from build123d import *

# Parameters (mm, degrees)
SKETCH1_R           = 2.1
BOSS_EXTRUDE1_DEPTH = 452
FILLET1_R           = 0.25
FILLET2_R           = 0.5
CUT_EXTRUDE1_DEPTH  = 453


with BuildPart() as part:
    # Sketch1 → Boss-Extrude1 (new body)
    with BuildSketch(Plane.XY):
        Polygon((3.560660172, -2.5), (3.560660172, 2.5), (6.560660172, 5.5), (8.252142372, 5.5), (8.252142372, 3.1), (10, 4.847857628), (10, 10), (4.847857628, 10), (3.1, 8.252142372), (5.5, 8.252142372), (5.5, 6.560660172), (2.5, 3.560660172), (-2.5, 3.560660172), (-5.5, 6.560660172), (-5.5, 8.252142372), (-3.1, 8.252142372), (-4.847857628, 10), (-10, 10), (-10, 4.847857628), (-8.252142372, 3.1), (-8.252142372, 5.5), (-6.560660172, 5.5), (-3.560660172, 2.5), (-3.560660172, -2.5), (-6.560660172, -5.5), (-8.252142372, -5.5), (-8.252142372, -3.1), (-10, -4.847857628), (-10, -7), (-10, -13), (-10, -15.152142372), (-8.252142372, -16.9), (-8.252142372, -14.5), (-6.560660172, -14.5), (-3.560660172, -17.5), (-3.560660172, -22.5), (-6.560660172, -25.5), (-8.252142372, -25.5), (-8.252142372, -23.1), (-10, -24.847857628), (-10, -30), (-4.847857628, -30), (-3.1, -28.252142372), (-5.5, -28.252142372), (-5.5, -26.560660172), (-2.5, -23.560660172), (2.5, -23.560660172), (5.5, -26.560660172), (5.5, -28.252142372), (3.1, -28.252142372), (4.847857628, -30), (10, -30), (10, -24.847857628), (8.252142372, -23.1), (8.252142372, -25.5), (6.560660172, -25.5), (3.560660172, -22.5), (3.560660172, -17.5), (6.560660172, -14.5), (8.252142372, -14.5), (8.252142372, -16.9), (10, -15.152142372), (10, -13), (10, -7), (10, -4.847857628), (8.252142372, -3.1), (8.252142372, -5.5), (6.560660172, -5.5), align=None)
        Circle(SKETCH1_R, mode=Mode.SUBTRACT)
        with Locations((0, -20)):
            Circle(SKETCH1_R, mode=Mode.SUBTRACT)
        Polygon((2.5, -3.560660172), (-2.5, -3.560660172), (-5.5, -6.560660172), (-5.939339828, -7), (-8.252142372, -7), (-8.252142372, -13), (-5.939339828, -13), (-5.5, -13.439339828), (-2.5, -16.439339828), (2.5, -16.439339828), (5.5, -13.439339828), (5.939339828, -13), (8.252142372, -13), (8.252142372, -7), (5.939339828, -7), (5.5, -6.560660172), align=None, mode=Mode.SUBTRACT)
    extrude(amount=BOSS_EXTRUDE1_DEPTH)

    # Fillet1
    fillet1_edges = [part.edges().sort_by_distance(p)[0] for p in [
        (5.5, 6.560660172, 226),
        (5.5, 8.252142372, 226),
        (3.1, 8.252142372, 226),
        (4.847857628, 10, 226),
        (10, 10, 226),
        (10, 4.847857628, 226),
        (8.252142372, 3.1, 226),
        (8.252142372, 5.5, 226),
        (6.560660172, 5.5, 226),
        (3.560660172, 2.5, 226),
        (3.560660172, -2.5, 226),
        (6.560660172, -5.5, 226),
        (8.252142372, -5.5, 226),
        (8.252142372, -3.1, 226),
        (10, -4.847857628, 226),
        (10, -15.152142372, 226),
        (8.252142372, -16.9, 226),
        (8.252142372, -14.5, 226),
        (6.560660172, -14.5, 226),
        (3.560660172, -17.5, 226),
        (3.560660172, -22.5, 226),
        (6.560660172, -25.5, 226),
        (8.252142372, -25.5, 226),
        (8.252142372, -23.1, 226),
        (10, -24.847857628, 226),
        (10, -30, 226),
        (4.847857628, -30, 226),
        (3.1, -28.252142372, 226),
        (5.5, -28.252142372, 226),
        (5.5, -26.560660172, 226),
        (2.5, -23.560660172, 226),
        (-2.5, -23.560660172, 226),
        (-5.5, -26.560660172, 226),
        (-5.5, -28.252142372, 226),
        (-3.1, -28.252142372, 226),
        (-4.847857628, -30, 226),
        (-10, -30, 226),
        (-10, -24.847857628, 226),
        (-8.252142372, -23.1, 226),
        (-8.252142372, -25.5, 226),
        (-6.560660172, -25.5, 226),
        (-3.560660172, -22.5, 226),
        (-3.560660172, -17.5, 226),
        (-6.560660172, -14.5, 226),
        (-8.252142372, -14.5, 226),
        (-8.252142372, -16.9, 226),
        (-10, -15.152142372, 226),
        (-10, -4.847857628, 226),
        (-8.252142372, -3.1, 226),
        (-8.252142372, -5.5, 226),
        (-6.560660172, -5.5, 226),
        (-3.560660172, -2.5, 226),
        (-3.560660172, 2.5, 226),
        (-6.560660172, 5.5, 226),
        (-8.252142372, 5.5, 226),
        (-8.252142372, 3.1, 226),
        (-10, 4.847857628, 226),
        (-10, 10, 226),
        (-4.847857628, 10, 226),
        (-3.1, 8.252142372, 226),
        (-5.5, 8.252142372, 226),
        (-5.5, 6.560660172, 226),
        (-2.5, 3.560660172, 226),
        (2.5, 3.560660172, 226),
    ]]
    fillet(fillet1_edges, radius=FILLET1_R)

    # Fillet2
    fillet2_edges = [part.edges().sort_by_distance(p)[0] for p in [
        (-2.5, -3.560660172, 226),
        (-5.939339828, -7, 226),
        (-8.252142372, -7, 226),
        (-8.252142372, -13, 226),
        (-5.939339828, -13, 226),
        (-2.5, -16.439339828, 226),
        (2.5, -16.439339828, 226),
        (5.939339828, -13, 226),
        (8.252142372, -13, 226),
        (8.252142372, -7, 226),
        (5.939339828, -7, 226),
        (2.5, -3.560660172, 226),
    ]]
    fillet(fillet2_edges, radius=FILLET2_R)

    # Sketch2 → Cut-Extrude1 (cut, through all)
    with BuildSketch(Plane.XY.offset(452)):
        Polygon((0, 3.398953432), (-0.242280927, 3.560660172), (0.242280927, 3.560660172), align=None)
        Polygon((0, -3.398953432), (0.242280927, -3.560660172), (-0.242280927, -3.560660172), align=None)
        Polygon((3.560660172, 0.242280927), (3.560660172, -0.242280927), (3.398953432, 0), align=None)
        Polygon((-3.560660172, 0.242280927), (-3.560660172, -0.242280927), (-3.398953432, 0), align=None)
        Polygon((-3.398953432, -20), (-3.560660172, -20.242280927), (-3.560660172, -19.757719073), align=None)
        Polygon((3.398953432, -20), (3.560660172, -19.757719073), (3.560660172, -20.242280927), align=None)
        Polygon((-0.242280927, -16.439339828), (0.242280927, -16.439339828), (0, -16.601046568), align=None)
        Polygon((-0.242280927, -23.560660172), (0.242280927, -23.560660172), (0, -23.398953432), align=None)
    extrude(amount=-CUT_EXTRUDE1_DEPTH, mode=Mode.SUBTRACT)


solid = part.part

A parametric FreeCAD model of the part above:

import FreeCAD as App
import Part
import Sketcher
from FreeCAD import Vector
Q = App.Units.Quantity


def edges_at(feature, points):
    """Names of the edges that pass closest to the given points."""
    edges = feature.Shape.Edges
    near = lambda p: min(range(len(edges)), key=lambda i: edges[i].distToShape(Part.Vertex(*p))[0])
    return sorted({f"Edge{near(p) + 1}" for p in points})

doc = App.newDocument("Part")
body = doc.addObject("PartDesign::Body", "Body")

sketch1 = body.newObject("Sketcher::SketchObject", "Sketch")
sketch1.AttachmentSupport = (doc.getObject("XY_Plane"), [""])
sketch1.MapMode = "FlatFace"
sketch1.addGeometry([
    Part.LineSegment(Vector(3.6, -2.5, 0), Vector(3.6, 2.5, 0)),
    Part.LineSegment(Vector(3.6, 2.5, 0), Vector(6.6, 5.5, 0)),
    Part.LineSegment(Vector(6.6, 5.5, 0), Vector(8.3, 5.5, 0)),
    Part.LineSegment(Vector(8.3, 5.5, 0), Vector(8.3, 3.1, 0)),
    Part.LineSegment(Vector(8.3, 3.1, 0), Vector(10, 4.8, 0)),
    Part.LineSegment(Vector(10, 4.8, 0), Vector(10, 10, 0)),
    Part.LineSegment(Vector(10, 10, 0), Vector(4.8, 10, 0)),
    Part.LineSegment(Vector(4.8, 10, 0), Vector(3.1, 8.3, 0)),
    Part.LineSegment(Vector(3.1, 8.3, 0), Vector(5.5, 8.3, 0)),
    Part.LineSegment(Vector(5.5, 8.3, 0), Vector(5.5, 6.6, 0)),
    Part.LineSegment(Vector(5.5, 6.6, 0), Vector(2.5, 3.6, 0)),
    Part.LineSegment(Vector(2.5, 3.6, 0), Vector(-2.5, 3.6, 0)),
    Part.LineSegment(Vector(-2.5, 3.6, 0), Vector(-5.5, 6.6, 0)),
    Part.LineSegment(Vector(-5.5, 6.6, 0), Vector(-5.5, 8.3, 0)),
    Part.LineSegment(Vector(-5.5, 8.3, 0), Vector(-3.1, 8.3, 0)),
    Part.LineSegment(Vector(-3.1, 8.3, 0), Vector(-4.8, 10, 0)),
    Part.LineSegment(Vector(-4.8, 10, 0), Vector(-10, 10, 0)),
    Part.LineSegment(Vector(-10, 10, 0), Vector(-10, 4.8, 0)),
    Part.LineSegment(Vector(-10, 4.8, 0), Vector(-8.3, 3.1, 0)),
    Part.LineSegment(Vector(-8.3, 3.1, 0), Vector(-8.3, 5.5, 0)),
    Part.LineSegment(Vector(-8.3, 5.5, 0), Vector(-6.6, 5.5, 0)),
    Part.LineSegment(Vector(-6.6, 5.5, 0), Vector(-3.6, 2.5, 0)),
    Part.LineSegment(Vector(-3.6, 2.5, 0), Vector(-3.6, -2.5, 0)),
    Part.LineSegment(Vector(-3.6, -2.5, 0), Vector(-6.6, -5.5, 0)),
    Part.LineSegment(Vector(-6.6, -5.5, 0), Vector(-8.3, -5.5, 0)),
    Part.LineSegment(Vector(-8.3, -5.5, 0), Vector(-8.3, -3.1, 0)),
    Part.LineSegment(Vector(-8.3, -3.1, 0), Vector(-10, -4.8, 0)),
    Part.LineSegment(Vector(-10, -4.8, 0), Vector(-10, -15.2, 0)),
    Part.LineSegment(Vector(-10, -15.2, 0), Vector(-8.3, -16.9, 0)),
    Part.LineSegment(Vector(-8.3, -16.9, 0), Vector(-8.3, -14.5, 0)),
    Part.LineSegment(Vector(-8.3, -14.5, 0), Vector(-6.6, -14.5, 0)),
    Part.LineSegment(Vector(-6.6, -14.5, 0), Vector(-3.6, -17.5, 0)),
    Part.LineSegment(Vector(-3.6, -17.5, 0), Vector(-3.6, -22.5, 0)),
    Part.LineSegment(Vector(-3.6, -22.5, 0), Vector(-6.6, -25.5, 0)),
    Part.LineSegment(Vector(-6.6, -25.5, 0), Vector(-8.3, -25.5, 0)),
    Part.LineSegment(Vector(-8.3, -25.5, 0), Vector(-8.3, -23.1, 0)),
    Part.LineSegment(Vector(-8.3, -23.1, 0), Vector(-10, -24.8, 0)),
    Part.LineSegment(Vector(-10, -24.8, 0), Vector(-10, -30, 0)),
    Part.LineSegment(Vector(-10, -30, 0), Vector(-4.8, -30, 0)),
    Part.LineSegment(Vector(-4.8, -30, 0), Vector(-3.1, -28.3, 0)),
    Part.LineSegment(Vector(-3.1, -28.3, 0), Vector(-5.5, -28.3, 0)),
    Part.LineSegment(Vector(-5.5, -28.3, 0), Vector(-5.5, -26.6, 0)),
    Part.LineSegment(Vector(-5.5, -26.6, 0), Vector(-2.5, -23.6, 0)),
    Part.LineSegment(Vector(-2.5, -23.6, 0), Vector(2.5, -23.6, 0)),
    Part.LineSegment(Vector(2.5, -23.6, 0), Vector(5.5, -26.6, 0)),
    Part.LineSegment(Vector(5.5, -26.6, 0), Vector(5.5, -28.3, 0)),
    Part.LineSegment(Vector(5.5, -28.3, 0), Vector(3.1, -28.3, 0)),
    Part.LineSegment(Vector(3.1, -28.3, 0), Vector(4.8, -30, 0)),
    Part.LineSegment(Vector(4.8, -30, 0), Vector(10, -30, 0)),
    Part.LineSegment(Vector(10, -30, 0), Vector(10, -24.8, 0)),
    Part.LineSegment(Vector(10, -24.8, 0), Vector(8.3, -23.1, 0)),
    Part.LineSegment(Vector(8.3, -23.1, 0), Vector(8.3, -25.5, 0)),
    Part.LineSegment(Vector(8.3, -25.5, 0), Vector(6.6, -25.5, 0)),
    Part.LineSegment(Vector(6.6, -25.5, 0), Vector(3.6, -22.5, 0)),
    Part.LineSegment(Vector(3.6, -22.5, 0), Vector(3.6, -17.5, 0)),
    Part.LineSegment(Vector(3.6, -17.5, 0), Vector(6.6, -14.5, 0)),
    Part.LineSegment(Vector(6.6, -14.5, 0), Vector(8.3, -14.5, 0)),
    Part.LineSegment(Vector(8.3, -14.5, 0), Vector(8.3, -16.9, 0)),
    Part.LineSegment(Vector(8.3, -16.9, 0), Vector(10, -15.2, 0)),
    Part.LineSegment(Vector(10, -15.2, 0), Vector(10, -4.8, 0)),
    Part.LineSegment(Vector(10, -4.8, 0), Vector(8.3, -3.1, 0)),
    Part.LineSegment(Vector(8.3, -3.1, 0), Vector(8.3, -5.5, 0)),
    Part.LineSegment(Vector(8.3, -5.5, 0), Vector(6.6, -5.5, 0)),
    Part.LineSegment(Vector(6.6, -5.5, 0), Vector(3.6, -2.5, 0)),
    Part.Circle(Vector(0, -20, 0), Vector(0, 0, 1), 2.1),
    Part.LineSegment(Vector(-2.5, -3.6, 0), Vector(2.5, -3.6, 0)),
    Part.LineSegment(Vector(2.5, -3.6, 0), Vector(5.9, -7, 0)),
    Part.LineSegment(Vector(5.9, -7, 0), Vector(8.3, -7, 0)),
    Part.LineSegment(Vector(8.3, -7, 0), Vector(8.3, -13, 0)),
    Part.LineSegment(Vector(8.3, -13, 0), Vector(5.9, -13, 0)),
    Part.LineSegment(Vector(5.9, -13, 0), Vector(2.5, -16.4, 0)),
    Part.LineSegment(Vector(2.5, -16.4, 0), Vector(-2.5, -16.4, 0)),
    Part.LineSegment(Vector(-2.5, -16.4, 0), Vector(-5.9, -13, 0)),
    Part.LineSegment(Vector(-5.9, -13, 0), Vector(-8.3, -13, 0)),
    Part.LineSegment(Vector(-8.3, -13, 0), Vector(-8.3, -7, 0)),
    Part.LineSegment(Vector(-8.3, -7, 0), Vector(-5.9, -7, 0)),
    Part.LineSegment(Vector(-5.9, -7, 0), Vector(-2.5, -3.6, 0)),
    Part.Circle(Vector(0, 0, 0), Vector(0, 0, 1), 2.1),
], False)
sketch1.addConstraint([
    Sketcher.Constraint("Coincident", 0, 2, 1, 1),
    Sketcher.Constraint("Coincident", 1, 2, 2, 1),
    Sketcher.Constraint("Coincident", 2, 2, 3, 1),
    Sketcher.Constraint("Coincident", 3, 2, 4, 1),
    Sketcher.Constraint("Coincident", 4, 2, 5, 1),
    Sketcher.Constraint("Coincident", 5, 2, 6, 1),
    Sketcher.Constraint("Coincident", 6, 2, 7, 1),
    Sketcher.Constraint("Coincident", 7, 2, 8, 1),
    Sketcher.Constraint("Coincident", 8, 2, 9, 1),
    Sketcher.Constraint("Coincident", 9, 2, 10, 1),
    Sketcher.Constraint("Coincident", 10, 2, 11, 1),
    Sketcher.Constraint("Coincident", 11, 2, 12, 1),
    Sketcher.Constraint("Coincident", 12, 2, 13, 1),
    Sketcher.Constraint("Coincident", 13, 2, 14, 1),
    Sketcher.Constraint("Coincident", 14, 2, 15, 1),
    Sketcher.Constraint("Coincident", 15, 2, 16, 1),
    Sketcher.Constraint("Coincident", 16, 2, 17, 1),
    Sketcher.Constraint("Coincident", 17, 2, 18, 1),
    Sketcher.Constraint("Coincident", 18, 2, 19, 1),
    Sketcher.Constraint("Coincident", 19, 2, 20, 1),
    Sketcher.Constraint("Coincident", 20, 2, 21, 1),
    Sketcher.Constraint("Coincident", 21, 2, 22, 1),
    Sketcher.Constraint("Coincident", 22, 2, 23, 1),
    Sketcher.Constraint("Coincident", 23, 2, 24, 1),
    Sketcher.Constraint("Coincident", 24, 2, 25, 1),
    Sketcher.Constraint("Coincident", 25, 2, 26, 1),
    Sketcher.Constraint("Coincident", 26, 2, 27, 1),
    Sketcher.Constraint("Coincident", 27, 2, 28, 1),
    Sketcher.Constraint("Coincident", 28, 2, 29, 1),
    Sketcher.Constraint("Coincident", 29, 2, 30, 1),
    Sketcher.Constraint("Coincident", 30, 2, 31, 1),
    Sketcher.Constraint("Coincident", 31, 2, 32, 1),
    Sketcher.Constraint("Coincident", 32, 2, 33, 1),
    Sketcher.Constraint("Coincident", 33, 2, 34, 1),
    Sketcher.Constraint("Coincident", 34, 2, 35, 1),
    Sketcher.Constraint("Coincident", 35, 2, 36, 1),
    Sketcher.Constraint("Coincident", 36, 2, 37, 1),
    Sketcher.Constraint("Coincident", 37, 2, 38, 1),
    Sketcher.Constraint("Coincident", 38, 2, 39, 1),
    Sketcher.Constraint("Coincident", 39, 2, 40, 1),
    Sketcher.Constraint("Coincident", 40, 2, 41, 1),
    Sketcher.Constraint("Coincident", 41, 2, 42, 1),
    Sketcher.Constraint("Coincident", 42, 2, 43, 1),
    Sketcher.Constraint("Coincident", 43, 2, 44, 1),
    Sketcher.Constraint("Coincident", 44, 2, 45, 1),
    Sketcher.Constraint("Coincident", 45, 2, 46, 1),
    Sketcher.Constraint("Coincident", 46, 2, 47, 1),
    Sketcher.Constraint("Coincident", 47, 2, 48, 1),
    Sketcher.Constraint("Coincident", 48, 2, 49, 1),
    Sketcher.Constraint("Coincident", 49, 2, 50, 1),
    Sketcher.Constraint("Coincident", 50, 2, 51, 1),
    Sketcher.Constraint("Coincident", 51, 2, 52, 1),
    Sketcher.Constraint("Coincident", 52, 2, 53, 1),
    Sketcher.Constraint("Coincident", 53, 2, 54, 1),
    Sketcher.Constraint("Coincident", 54, 2, 55, 1),
    Sketcher.Constraint("Coincident", 55, 2, 56, 1),
    Sketcher.Constraint("Coincident", 56, 2, 57, 1),
    Sketcher.Constraint("Coincident", 57, 2, 58, 1),
    Sketcher.Constraint("Coincident", 58, 2, 59, 1),
    Sketcher.Constraint("Coincident", 59, 2, 60, 1),
    Sketcher.Constraint("Coincident", 60, 2, 61, 1),
    Sketcher.Constraint("Coincident", 61, 2, 62, 1),
    Sketcher.Constraint("Coincident", 62, 2, 63, 1),
    Sketcher.Constraint("Coincident", 63, 2, 0, 1),
    Sketcher.Constraint("Coincident", 65, 2, 66, 1),
    Sketcher.Constraint("Coincident", 66, 2, 67, 1),
    Sketcher.Constraint("Coincident", 67, 2, 68, 1),
    Sketcher.Constraint("Coincident", 68, 2, 69, 1),
    Sketcher.Constraint("Coincident", 69, 2, 70, 1),
    Sketcher.Constraint("Coincident", 70, 2, 71, 1),
    Sketcher.Constraint("Coincident", 71, 2, 72, 1),
    Sketcher.Constraint("Coincident", 72, 2, 73, 1),
    Sketcher.Constraint("Coincident", 73, 2, 74, 1),
    Sketcher.Constraint("Coincident", 74, 2, 75, 1),
    Sketcher.Constraint("Coincident", 75, 2, 76, 1),
    Sketcher.Constraint("Coincident", 76, 2, 65, 1),
    Sketcher.Constraint("Vertical", 0),
    Sketcher.Constraint("Horizontal", 2),
    Sketcher.Constraint("Vertical", 3),
    Sketcher.Constraint("Vertical", 5),
    Sketcher.Constraint("Horizontal", 6),
    Sketcher.Constraint("Horizontal", 8),
    Sketcher.Constraint("Vertical", 9),
    Sketcher.Constraint("Horizontal", 11),
    Sketcher.Constraint("Vertical", 13),
    Sketcher.Constraint("Horizontal", 14),
    Sketcher.Constraint("Horizontal", 16),
    Sketcher.Constraint("Vertical", 17),
    Sketcher.Constraint("Vertical", 19),
    Sketcher.Constraint("Horizontal", 20),
    Sketcher.Constraint("Vertical", 22),
    Sketcher.Constraint("Horizontal", 24),
    Sketcher.Constraint("Vertical", 25),
    Sketcher.Constraint("Vertical", 27),
    Sketcher.Constraint("Vertical", 29),
    Sketcher.Constraint("Horizontal", 30),
    Sketcher.Constraint("Vertical", 32),
    Sketcher.Constraint("Horizontal", 34),
    Sketcher.Constraint("Vertical", 35),
    Sketcher.Constraint("Vertical", 37),
    Sketcher.Constraint("Horizontal", 38),
    Sketcher.Constraint("Horizontal", 40),
    Sketcher.Constraint("Vertical", 41),
    Sketcher.Constraint("Horizontal", 43),
    Sketcher.Constraint("Vertical", 45),
    Sketcher.Constraint("Horizontal", 46),
    Sketcher.Constraint("Horizontal", 48),
    Sketcher.Constraint("Vertical", 49),
    Sketcher.Constraint("Vertical", 51),
    Sketcher.Constraint("Horizontal", 52),
    Sketcher.Constraint("Vertical", 54),
    Sketcher.Constraint("Horizontal", 56),
    Sketcher.Constraint("Vertical", 57),
    Sketcher.Constraint("Vertical", 59),
    Sketcher.Constraint("Vertical", 61),
    Sketcher.Constraint("Horizontal", 62),
    Sketcher.Constraint("Horizontal", 65),
    Sketcher.Constraint("Horizontal", 67),
    Sketcher.Constraint("Vertical", 68),
    Sketcher.Constraint("Horizontal", 69),
    Sketcher.Constraint("Horizontal", 71),
    Sketcher.Constraint("Horizontal", 73),
    Sketcher.Constraint("Vertical", 74),
    Sketcher.Constraint("Horizontal", 75),
    Sketcher.Constraint("Coincident", 77, 3, -1, 1),
    Sketcher.Constraint("Equal", 64, 77),
    Sketcher.Constraint("Symmetric", 0, 2, 22, 2, -1, 1),
    Sketcher.Constraint("Symmetric", 1, 2, 23, 2, -1, 1),
    Sketcher.Constraint("Symmetric", 3, 2, 25, 2, -1, 1),
    Sketcher.Constraint("Symmetric", 4, 2, 26, 2, -1, 1),
    Sketcher.Constraint("Symmetric", 17, 2, 59, 2, -1, 1),
    Sketcher.Constraint("Symmetric", 18, 2, 60, 2, -1, 1),
    Sketcher.Constraint("Symmetric", 20, 2, 62, 2, -1, 1),
    Sketcher.Constraint("Symmetric", 11, 2, 65, 2, -1, 1),
    Sketcher.Constraint("Symmetric", 9, 2, 12, 2, -2),
    Sketcher.Constraint("Symmetric", 7, 2, 14, 2, -2),
    Sketcher.Constraint("Symmetric", 6, 2, 15, 2, -2),
    Sketcher.Constraint("Symmetric", 4, 2, 17, 2, -2),
    Sketcher.Constraint("Symmetric", 3, 2, 18, 2, -2),
    Sketcher.Constraint("Symmetric", 1, 2, 20, 2, -2),
    Sketcher.Constraint("Symmetric", 41, 2, 44, 2, -2),
    Sketcher.Constraint("Symmetric", 39, 2, 46, 2, -2),
    Sketcher.Constraint("Symmetric", 38, 2, 47, 2, -2),
    Sketcher.Constraint("Symmetric", 36, 2, 49, 2, -2),
    Sketcher.Constraint("Symmetric", 35, 2, 50, 2, -2),
    Sketcher.Constraint("Symmetric", 33, 2, 52, 2, -2),
    Sketcher.Constraint("Symmetric", 32, 2, 53, 2, -2),
    Sketcher.Constraint("Symmetric", 30, 2, 55, 2, -2),
    Sketcher.Constraint("Symmetric", 28, 2, 57, 2, -2),
    Sketcher.Constraint("Symmetric", 69, 2, 72, 2, -2),
    Sketcher.Constraint("Symmetric", 67, 2, 74, 2, -2),
    Sketcher.Constraint("PointOnObject", 64, 3, -2),
    Sketcher.Constraint("Parallel", 1, 4),
    Sketcher.Constraint("Parallel", 4, 7),
    Sketcher.Constraint("Parallel", 7, 10),
    Sketcher.Constraint("Perpendicular", 10, 12),
    Sketcher.Constraint("Parallel", 12, 15),
    Sketcher.Constraint("Parallel", 18, 21),
    Sketcher.Constraint("Perpendicular", 26, 28),
    Sketcher.Constraint("Parallel", 28, 31),
    Sketcher.Constraint("Perpendicular", 31, 33),
    Sketcher.Constraint("Parallel", 33, 36),
    Sketcher.Constraint("Parallel", 36, 39),
    Sketcher.Constraint("Parallel", 39, 42),
    Sketcher.Constraint("Perpendicular", 42, 44),
    Sketcher.Constraint("Perpendicular", 53, 55),
    Sketcher.Constraint("Parallel", 55, 58),
    Sketcher.Constraint("Parallel", 60, 63),
    Sketcher.Constraint("Parallel", 63, 66),
    Sketcher.Constraint("Perpendicular", 66, 70),
    Sketcher.Constraint("Perpendicular", 70, 72),
    Sketcher.Constraint("Perpendicular", 72, 76),
    Sketcher.Constraint("Vertical", 25, 2, 28, 2),
    Sketcher.Constraint("Vertical", 23, 2, 30, 2),
    Sketcher.Constraint("Vertical", 22, 2, 31, 2),
    Sketcher.Constraint("Vertical", 30, 2, 33, 2),
    Sketcher.Constraint("Vertical", 29, 2, 34, 2),
    Sketcher.Constraint("Vertical", 27, 2, 36, 2),
    Sketcher.Constraint("Vertical", 15, 2, 38, 2),
    Sketcher.Constraint("Vertical", 14, 2, 39, 2),
    Sketcher.Constraint("Vertical", 13, 2, 40, 2),
    Sketcher.Constraint("Vertical", 11, 2, 42, 2),
    Sketcher.Constraint("Vertical", 61, 2, 67, 2),
    Sketcher.Constraint("Vertical", 66, 2, 69, 2),
    Sketcher.Constraint("Vertical", 65, 2, 70, 2),
    Sketcher.Constraint("Vertical", 72, 2, 75, 2),
    Sketcher.Constraint("Equal", 71, 0),
    Sketcher.Constraint("Equal", 46, 3),
    Sketcher.Constraint("Equal", 48, 5),
    Sketcher.Constraint("Equal", 62, 9),
    Sketcher.Constraint("Equal", 25, 29),
    Sketcher.Constraint("Equal", 22, 32),
    Sketcher.Constraint("Equal", 29, 35),
    Sketcher.Constraint("Equal", 17, 37),
    Sketcher.Constraint("Equal", 13, 41),
    Sketcher.Constraint("Equal", 4, 7),
    Sketcher.Constraint("Equal", 1, 10),
    Sketcher.Constraint("Diameter", 64, Q("4.2 mm")),
    Sketcher.Constraint("DistanceX", 11, 2, 11, 1, Q("5 mm")),
    Sketcher.Constraint("DistanceY", 68, 2, 68, 1, Q("6 mm")),
    Sketcher.Constraint("DistanceX", 8, 1, 8, 2, Q("2.4 mm")),
    Sketcher.Constraint("DistanceY", 64, 3, -1, 1, Q("20 mm")),
    Sketcher.Constraint("DistanceX", -1, 1, 4, 2, Q("10 mm")),
    Sketcher.Constraint("DistanceY", 37, 2, -1, 1, Q("30 mm")),
    Sketcher.Constraint("DistanceY", 66, 2, -1, 1, Q("7 mm")),
    Sketcher.Constraint("DistanceY", -1, 1, 1, 2, Q("5.5 mm")),
    Sketcher.Constraint("Distance", 66, Q("4.863961 mm")),
    Sketcher.Constraint("DistanceX", 2, 1, 2, 2, Q("1.691482 mm")),
])
pad1 = body.newObject("PartDesign::Pad", "Pad")
pad1.Profile = sketch1
pad1.Length = 452
doc.recompute()

fillet = body.newObject("PartDesign::Fillet", "Fillet")
fillet.Base = (pad1, edges_at(pad1, [
    (5.5, 6.561, 226),
    (5.5, 8.252, 226),
    (3.1, 8.252, 226),
    (4.848, 10, 226),
    (10, 10, 226),
    (10, 4.848, 226),
    (8.252, 3.1, 226),
    (8.252, 5.5, 226),
    (6.561, 5.5, 226),
    (3.561, 2.5, 226),
    (3.561, -2.5, 226),
    (6.561, -5.5, 226),
    (8.252, -5.5, 226),
    (8.252, -3.1, 226),
    (10, -4.848, 226),
    (10, -15.152, 226),
    (8.252, -16.9, 226),
    (8.252, -14.5, 226),
    (6.561, -14.5, 226),
    (3.561, -17.5, 226),
    (3.561, -22.5, 226),
    (6.561, -25.5, 226),
    (8.252, -25.5, 226),
    (8.252, -23.1, 226),
    (10, -24.848, 226),
    (10, -30, 226),
    (4.848, -30, 226),
    (3.1, -28.252, 226),
    (5.5, -28.252, 226),
    (5.5, -26.561, 226),
    (2.5, -23.561, 226),
    (-2.5, -23.561, 226),
    (-5.5, -26.561, 226),
    (-5.5, -28.252, 226),
    (-3.1, -28.252, 226),
    (-4.848, -30, 226),
    (-10, -30, 226),
    (-10, -24.848, 226),
    (-8.252, -23.1, 226),
    (-8.252, -25.5, 226),
    (-6.561, -25.5, 226),
    (-3.561, -22.5, 226),
    (-3.561, -17.5, 226),
    (-6.561, -14.5, 226),
    (-8.252, -14.5, 226),
    (-8.252, -16.9, 226),
    (-10, -15.152, 226),
    (-10, -4.848, 226),
    (-8.252, -3.1, 226),
    (-8.252, -5.5, 226),
    (-6.561, -5.5, 226),
    (-3.561, -2.5, 226),
    (-3.561, 2.5, 226),
    (-6.561, 5.5, 226),
    (-8.252, 5.5, 226),
    (-8.252, 3.1, 226),
    (-10, 4.848, 226),
    (-10, 10, 226),
    (-4.848, 10, 226),
    (-3.1, 8.252, 226),
    (-5.5, 8.252, 226),
    (-5.5, 6.561, 226),
    (-2.5, 3.561, 226),
    (2.5, 3.561, 226),
]))
fillet.Radius = 0.25
doc.recompute()

fillet2 = body.newObject("PartDesign::Fillet", "Fillet001")
fillet2.Base = (fillet, edges_at(fillet, [
    (-2.5, -3.561, 226),
    (-5.939, -7, 226),
    (-8.252, -7, 226),
    (-8.252, -13, 226),
    (-5.939, -13, 226),
    (-2.5, -16.439, 226),
    (2.5, -16.439, 226),
    (5.939, -13, 226),
    (8.252, -13, 226),
    (8.252, -7, 226),
    (5.939, -7, 226),
    (2.5, -3.561, 226),
]))
fillet2.Radius = 0.5

sketch2 = body.newObject("Sketcher::SketchObject", "Sketch001")
sketch2.AttachmentSupport = (doc.getObject("XY_Plane"), [""])
sketch2.MapMode = "FlatFace"
sketch2.AttachmentOffset = App.Placement(Vector(0, 0, 452), App.Rotation())
sketch2.addGeometry([
    Part.LineSegment(Vector(-0.24, 3.56, 0), Vector(0, 3.4, 0)),
    Part.LineSegment(Vector(0, 3.4, 0), Vector(0.24, 3.56, 0)),
    Part.LineSegment(Vector(0.24, 3.56, 0), Vector(-0.24, 3.56, 0)),
    Part.LineSegment(Vector(0.24, -3.56, 0), Vector(0, -3.4, 0)),
    Part.LineSegment(Vector(0, -3.4, 0), Vector(-0.24, -3.56, 0)),
    Part.LineSegment(Vector(-0.24, -3.56, 0), Vector(0.24, -3.56, 0)),
    Part.LineSegment(Vector(3.56, -0.24, 0), Vector(3.56, 0.24, 0)),
    Part.LineSegment(Vector(3.56, 0.24, 0), Vector(3.4, 0, 0)),
    Part.LineSegment(Vector(3.4, 0, 0), Vector(3.56, -0.24, 0)),
    Part.LineSegment(Vector(-3.56, 0.24, 0), Vector(-3.56, -0.24, 0)),
    Part.LineSegment(Vector(-3.56, -0.24, 0), Vector(-3.4, 0, 0)),
    Part.LineSegment(Vector(-3.4, 0, 0), Vector(-3.56, 0.24, 0)),
    Part.LineSegment(Vector(-3.56, -20.24, 0), Vector(-3.4, -20, 0)),
    Part.LineSegment(Vector(-3.4, -20, 0), Vector(-3.56, -19.76, 0)),
    Part.LineSegment(Vector(-3.56, -19.76, 0), Vector(-3.56, -20.24, 0)),
    Part.LineSegment(Vector(3.56, -19.76, 0), Vector(3.4, -20, 0)),
    Part.LineSegment(Vector(3.4, -20, 0), Vector(3.56, -20.24, 0)),
    Part.LineSegment(Vector(3.56, -20.24, 0), Vector(3.56, -19.76, 0)),
    Part.LineSegment(Vector(0.24, -16.44, 0), Vector(-0.24, -16.44, 0)),
    Part.LineSegment(Vector(-0.24, -16.44, 0), Vector(0, -16.6, 0)),
    Part.LineSegment(Vector(0, -16.6, 0), Vector(0.24, -16.44, 0)),
    Part.LineSegment(Vector(-0.24, -23.56, 0), Vector(0.24, -23.56, 0)),
    Part.LineSegment(Vector(0.24, -23.56, 0), Vector(0, -23.4, 0)),
    Part.LineSegment(Vector(0, -23.4, 0), Vector(-0.24, -23.56, 0)),
], False)
sketch2.addConstraint([
    Sketcher.Constraint("Coincident", 0, 2, 1, 1),
    Sketcher.Constraint("Coincident", 1, 2, 2, 1),
    Sketcher.Constraint("Coincident", 2, 2, 0, 1),
    Sketcher.Constraint("Coincident", 3, 2, 4, 1),
    Sketcher.Constraint("Coincident", 4, 2, 5, 1),
    Sketcher.Constraint("Coincident", 5, 2, 3, 1),
    Sketcher.Constraint("Coincident", 6, 2, 7, 1),
    Sketcher.Constraint("Coincident", 7, 2, 8, 1),
    Sketcher.Constraint("Coincident", 8, 2, 6, 1),
    Sketcher.Constraint("Coincident", 9, 2, 10, 1),
    Sketcher.Constraint("Coincident", 10, 2, 11, 1),
    Sketcher.Constraint("Coincident", 11, 2, 9, 1),
    Sketcher.Constraint("Coincident", 12, 2, 13, 1),
    Sketcher.Constraint("Coincident", 13, 2, 14, 1),
    Sketcher.Constraint("Coincident", 14, 2, 12, 1),
    Sketcher.Constraint("Coincident", 15, 2, 16, 1),
    Sketcher.Constraint("Coincident", 16, 2, 17, 1),
    Sketcher.Constraint("Coincident", 17, 2, 15, 1),
    Sketcher.Constraint("Coincident", 18, 2, 19, 1),
    Sketcher.Constraint("Coincident", 19, 2, 20, 1),
    Sketcher.Constraint("Coincident", 20, 2, 18, 1),
    Sketcher.Constraint("Coincident", 21, 2, 22, 1),
    Sketcher.Constraint("Coincident", 22, 2, 23, 1),
    Sketcher.Constraint("Coincident", 23, 2, 21, 1),
    Sketcher.Constraint("Horizontal", 2),
    Sketcher.Constraint("Horizontal", 5),
    Sketcher.Constraint("Vertical", 6),
    Sketcher.Constraint("Vertical", 9),
    Sketcher.Constraint("Vertical", 14),
    Sketcher.Constraint("Vertical", 17),
    Sketcher.Constraint("Horizontal", 18),
    Sketcher.Constraint("Horizontal", 21),
    Sketcher.Constraint("Symmetric", 0, 2, 3, 2, -1, 1),
    Sketcher.Constraint("Symmetric", 1, 2, 4, 2, -1, 1),
    Sketcher.Constraint("Symmetric", 6, 2, 9, 2, -1, 1),
    Sketcher.Constraint("Symmetric", 7, 2, 10, 2, -1, 1),
    Sketcher.Constraint("Symmetric", 12, 2, 15, 2, -2),
    Sketcher.Constraint("Symmetric", 14, 2, 16, 2, -2),
    Sketcher.Constraint("PointOnObject", 0, 2, -2),
    Sketcher.Constraint("PointOnObject", 7, 2, -1),
    Sketcher.Constraint("PointOnObject", 19, 2, -2),
    Sketcher.Constraint("PointOnObject", 22, 2, -2),
    Sketcher.Constraint("Parallel", 0, 3),
    Sketcher.Constraint("Perpendicular", 3, 7),
    Sketcher.Constraint("Perpendicular", 4, 8),
    Sketcher.Constraint("Parallel", 8, 11),
    Sketcher.Constraint("Parallel", 10, 12),
    Sketcher.Constraint("Parallel", 11, 13),
    Sketcher.Constraint("Parallel", 12, 15),
    Sketcher.Constraint("Parallel", 13, 16),
    Sketcher.Constraint("Perpendicular", 15, 19),
    Sketcher.Constraint("Perpendicular", 16, 20),
    Sketcher.Constraint("Parallel", 19, 22),
    Sketcher.Constraint("Parallel", 20, 23),
    Sketcher.Constraint("Vertical", 10, 2, 12, 2),
    Sketcher.Constraint("Vertical", 11, 2, 13, 2),
    Sketcher.Constraint("Vertical", 4, 2, 18, 2),
    Sketcher.Constraint("Vertical", 20, 2, 21, 2),
    Sketcher.Constraint("Equal", 21, 6),
    Sketcher.Constraint("DistanceY", 12, 2, -1, 1, Q("20 mm")),
    Sketcher.Constraint("DistanceX", 2, 2, 2, 1, Q("0.484562 mm")),
    Sketcher.Constraint("Distance", 0, Q("0.291289 mm")),
    Sketcher.Constraint("DistanceY", -1, 1, 1, 2, Q("3.56066 mm")),
    Sketcher.Constraint("DistanceX", -1, 1, 6, 2, Q("3.56066 mm")),
    Sketcher.Constraint("DistanceY", 18, 2, -1, 1, Q("16.43934 mm")),
    Sketcher.Constraint("DistanceY", 21, 2, -1, 1, Q("23.56066 mm")),
])
pocket1 = body.newObject("PartDesign::Pocket", "Pocket")
pocket1.Profile = sketch2
pocket1.Type = "ThroughAll"

doc.recompute()
